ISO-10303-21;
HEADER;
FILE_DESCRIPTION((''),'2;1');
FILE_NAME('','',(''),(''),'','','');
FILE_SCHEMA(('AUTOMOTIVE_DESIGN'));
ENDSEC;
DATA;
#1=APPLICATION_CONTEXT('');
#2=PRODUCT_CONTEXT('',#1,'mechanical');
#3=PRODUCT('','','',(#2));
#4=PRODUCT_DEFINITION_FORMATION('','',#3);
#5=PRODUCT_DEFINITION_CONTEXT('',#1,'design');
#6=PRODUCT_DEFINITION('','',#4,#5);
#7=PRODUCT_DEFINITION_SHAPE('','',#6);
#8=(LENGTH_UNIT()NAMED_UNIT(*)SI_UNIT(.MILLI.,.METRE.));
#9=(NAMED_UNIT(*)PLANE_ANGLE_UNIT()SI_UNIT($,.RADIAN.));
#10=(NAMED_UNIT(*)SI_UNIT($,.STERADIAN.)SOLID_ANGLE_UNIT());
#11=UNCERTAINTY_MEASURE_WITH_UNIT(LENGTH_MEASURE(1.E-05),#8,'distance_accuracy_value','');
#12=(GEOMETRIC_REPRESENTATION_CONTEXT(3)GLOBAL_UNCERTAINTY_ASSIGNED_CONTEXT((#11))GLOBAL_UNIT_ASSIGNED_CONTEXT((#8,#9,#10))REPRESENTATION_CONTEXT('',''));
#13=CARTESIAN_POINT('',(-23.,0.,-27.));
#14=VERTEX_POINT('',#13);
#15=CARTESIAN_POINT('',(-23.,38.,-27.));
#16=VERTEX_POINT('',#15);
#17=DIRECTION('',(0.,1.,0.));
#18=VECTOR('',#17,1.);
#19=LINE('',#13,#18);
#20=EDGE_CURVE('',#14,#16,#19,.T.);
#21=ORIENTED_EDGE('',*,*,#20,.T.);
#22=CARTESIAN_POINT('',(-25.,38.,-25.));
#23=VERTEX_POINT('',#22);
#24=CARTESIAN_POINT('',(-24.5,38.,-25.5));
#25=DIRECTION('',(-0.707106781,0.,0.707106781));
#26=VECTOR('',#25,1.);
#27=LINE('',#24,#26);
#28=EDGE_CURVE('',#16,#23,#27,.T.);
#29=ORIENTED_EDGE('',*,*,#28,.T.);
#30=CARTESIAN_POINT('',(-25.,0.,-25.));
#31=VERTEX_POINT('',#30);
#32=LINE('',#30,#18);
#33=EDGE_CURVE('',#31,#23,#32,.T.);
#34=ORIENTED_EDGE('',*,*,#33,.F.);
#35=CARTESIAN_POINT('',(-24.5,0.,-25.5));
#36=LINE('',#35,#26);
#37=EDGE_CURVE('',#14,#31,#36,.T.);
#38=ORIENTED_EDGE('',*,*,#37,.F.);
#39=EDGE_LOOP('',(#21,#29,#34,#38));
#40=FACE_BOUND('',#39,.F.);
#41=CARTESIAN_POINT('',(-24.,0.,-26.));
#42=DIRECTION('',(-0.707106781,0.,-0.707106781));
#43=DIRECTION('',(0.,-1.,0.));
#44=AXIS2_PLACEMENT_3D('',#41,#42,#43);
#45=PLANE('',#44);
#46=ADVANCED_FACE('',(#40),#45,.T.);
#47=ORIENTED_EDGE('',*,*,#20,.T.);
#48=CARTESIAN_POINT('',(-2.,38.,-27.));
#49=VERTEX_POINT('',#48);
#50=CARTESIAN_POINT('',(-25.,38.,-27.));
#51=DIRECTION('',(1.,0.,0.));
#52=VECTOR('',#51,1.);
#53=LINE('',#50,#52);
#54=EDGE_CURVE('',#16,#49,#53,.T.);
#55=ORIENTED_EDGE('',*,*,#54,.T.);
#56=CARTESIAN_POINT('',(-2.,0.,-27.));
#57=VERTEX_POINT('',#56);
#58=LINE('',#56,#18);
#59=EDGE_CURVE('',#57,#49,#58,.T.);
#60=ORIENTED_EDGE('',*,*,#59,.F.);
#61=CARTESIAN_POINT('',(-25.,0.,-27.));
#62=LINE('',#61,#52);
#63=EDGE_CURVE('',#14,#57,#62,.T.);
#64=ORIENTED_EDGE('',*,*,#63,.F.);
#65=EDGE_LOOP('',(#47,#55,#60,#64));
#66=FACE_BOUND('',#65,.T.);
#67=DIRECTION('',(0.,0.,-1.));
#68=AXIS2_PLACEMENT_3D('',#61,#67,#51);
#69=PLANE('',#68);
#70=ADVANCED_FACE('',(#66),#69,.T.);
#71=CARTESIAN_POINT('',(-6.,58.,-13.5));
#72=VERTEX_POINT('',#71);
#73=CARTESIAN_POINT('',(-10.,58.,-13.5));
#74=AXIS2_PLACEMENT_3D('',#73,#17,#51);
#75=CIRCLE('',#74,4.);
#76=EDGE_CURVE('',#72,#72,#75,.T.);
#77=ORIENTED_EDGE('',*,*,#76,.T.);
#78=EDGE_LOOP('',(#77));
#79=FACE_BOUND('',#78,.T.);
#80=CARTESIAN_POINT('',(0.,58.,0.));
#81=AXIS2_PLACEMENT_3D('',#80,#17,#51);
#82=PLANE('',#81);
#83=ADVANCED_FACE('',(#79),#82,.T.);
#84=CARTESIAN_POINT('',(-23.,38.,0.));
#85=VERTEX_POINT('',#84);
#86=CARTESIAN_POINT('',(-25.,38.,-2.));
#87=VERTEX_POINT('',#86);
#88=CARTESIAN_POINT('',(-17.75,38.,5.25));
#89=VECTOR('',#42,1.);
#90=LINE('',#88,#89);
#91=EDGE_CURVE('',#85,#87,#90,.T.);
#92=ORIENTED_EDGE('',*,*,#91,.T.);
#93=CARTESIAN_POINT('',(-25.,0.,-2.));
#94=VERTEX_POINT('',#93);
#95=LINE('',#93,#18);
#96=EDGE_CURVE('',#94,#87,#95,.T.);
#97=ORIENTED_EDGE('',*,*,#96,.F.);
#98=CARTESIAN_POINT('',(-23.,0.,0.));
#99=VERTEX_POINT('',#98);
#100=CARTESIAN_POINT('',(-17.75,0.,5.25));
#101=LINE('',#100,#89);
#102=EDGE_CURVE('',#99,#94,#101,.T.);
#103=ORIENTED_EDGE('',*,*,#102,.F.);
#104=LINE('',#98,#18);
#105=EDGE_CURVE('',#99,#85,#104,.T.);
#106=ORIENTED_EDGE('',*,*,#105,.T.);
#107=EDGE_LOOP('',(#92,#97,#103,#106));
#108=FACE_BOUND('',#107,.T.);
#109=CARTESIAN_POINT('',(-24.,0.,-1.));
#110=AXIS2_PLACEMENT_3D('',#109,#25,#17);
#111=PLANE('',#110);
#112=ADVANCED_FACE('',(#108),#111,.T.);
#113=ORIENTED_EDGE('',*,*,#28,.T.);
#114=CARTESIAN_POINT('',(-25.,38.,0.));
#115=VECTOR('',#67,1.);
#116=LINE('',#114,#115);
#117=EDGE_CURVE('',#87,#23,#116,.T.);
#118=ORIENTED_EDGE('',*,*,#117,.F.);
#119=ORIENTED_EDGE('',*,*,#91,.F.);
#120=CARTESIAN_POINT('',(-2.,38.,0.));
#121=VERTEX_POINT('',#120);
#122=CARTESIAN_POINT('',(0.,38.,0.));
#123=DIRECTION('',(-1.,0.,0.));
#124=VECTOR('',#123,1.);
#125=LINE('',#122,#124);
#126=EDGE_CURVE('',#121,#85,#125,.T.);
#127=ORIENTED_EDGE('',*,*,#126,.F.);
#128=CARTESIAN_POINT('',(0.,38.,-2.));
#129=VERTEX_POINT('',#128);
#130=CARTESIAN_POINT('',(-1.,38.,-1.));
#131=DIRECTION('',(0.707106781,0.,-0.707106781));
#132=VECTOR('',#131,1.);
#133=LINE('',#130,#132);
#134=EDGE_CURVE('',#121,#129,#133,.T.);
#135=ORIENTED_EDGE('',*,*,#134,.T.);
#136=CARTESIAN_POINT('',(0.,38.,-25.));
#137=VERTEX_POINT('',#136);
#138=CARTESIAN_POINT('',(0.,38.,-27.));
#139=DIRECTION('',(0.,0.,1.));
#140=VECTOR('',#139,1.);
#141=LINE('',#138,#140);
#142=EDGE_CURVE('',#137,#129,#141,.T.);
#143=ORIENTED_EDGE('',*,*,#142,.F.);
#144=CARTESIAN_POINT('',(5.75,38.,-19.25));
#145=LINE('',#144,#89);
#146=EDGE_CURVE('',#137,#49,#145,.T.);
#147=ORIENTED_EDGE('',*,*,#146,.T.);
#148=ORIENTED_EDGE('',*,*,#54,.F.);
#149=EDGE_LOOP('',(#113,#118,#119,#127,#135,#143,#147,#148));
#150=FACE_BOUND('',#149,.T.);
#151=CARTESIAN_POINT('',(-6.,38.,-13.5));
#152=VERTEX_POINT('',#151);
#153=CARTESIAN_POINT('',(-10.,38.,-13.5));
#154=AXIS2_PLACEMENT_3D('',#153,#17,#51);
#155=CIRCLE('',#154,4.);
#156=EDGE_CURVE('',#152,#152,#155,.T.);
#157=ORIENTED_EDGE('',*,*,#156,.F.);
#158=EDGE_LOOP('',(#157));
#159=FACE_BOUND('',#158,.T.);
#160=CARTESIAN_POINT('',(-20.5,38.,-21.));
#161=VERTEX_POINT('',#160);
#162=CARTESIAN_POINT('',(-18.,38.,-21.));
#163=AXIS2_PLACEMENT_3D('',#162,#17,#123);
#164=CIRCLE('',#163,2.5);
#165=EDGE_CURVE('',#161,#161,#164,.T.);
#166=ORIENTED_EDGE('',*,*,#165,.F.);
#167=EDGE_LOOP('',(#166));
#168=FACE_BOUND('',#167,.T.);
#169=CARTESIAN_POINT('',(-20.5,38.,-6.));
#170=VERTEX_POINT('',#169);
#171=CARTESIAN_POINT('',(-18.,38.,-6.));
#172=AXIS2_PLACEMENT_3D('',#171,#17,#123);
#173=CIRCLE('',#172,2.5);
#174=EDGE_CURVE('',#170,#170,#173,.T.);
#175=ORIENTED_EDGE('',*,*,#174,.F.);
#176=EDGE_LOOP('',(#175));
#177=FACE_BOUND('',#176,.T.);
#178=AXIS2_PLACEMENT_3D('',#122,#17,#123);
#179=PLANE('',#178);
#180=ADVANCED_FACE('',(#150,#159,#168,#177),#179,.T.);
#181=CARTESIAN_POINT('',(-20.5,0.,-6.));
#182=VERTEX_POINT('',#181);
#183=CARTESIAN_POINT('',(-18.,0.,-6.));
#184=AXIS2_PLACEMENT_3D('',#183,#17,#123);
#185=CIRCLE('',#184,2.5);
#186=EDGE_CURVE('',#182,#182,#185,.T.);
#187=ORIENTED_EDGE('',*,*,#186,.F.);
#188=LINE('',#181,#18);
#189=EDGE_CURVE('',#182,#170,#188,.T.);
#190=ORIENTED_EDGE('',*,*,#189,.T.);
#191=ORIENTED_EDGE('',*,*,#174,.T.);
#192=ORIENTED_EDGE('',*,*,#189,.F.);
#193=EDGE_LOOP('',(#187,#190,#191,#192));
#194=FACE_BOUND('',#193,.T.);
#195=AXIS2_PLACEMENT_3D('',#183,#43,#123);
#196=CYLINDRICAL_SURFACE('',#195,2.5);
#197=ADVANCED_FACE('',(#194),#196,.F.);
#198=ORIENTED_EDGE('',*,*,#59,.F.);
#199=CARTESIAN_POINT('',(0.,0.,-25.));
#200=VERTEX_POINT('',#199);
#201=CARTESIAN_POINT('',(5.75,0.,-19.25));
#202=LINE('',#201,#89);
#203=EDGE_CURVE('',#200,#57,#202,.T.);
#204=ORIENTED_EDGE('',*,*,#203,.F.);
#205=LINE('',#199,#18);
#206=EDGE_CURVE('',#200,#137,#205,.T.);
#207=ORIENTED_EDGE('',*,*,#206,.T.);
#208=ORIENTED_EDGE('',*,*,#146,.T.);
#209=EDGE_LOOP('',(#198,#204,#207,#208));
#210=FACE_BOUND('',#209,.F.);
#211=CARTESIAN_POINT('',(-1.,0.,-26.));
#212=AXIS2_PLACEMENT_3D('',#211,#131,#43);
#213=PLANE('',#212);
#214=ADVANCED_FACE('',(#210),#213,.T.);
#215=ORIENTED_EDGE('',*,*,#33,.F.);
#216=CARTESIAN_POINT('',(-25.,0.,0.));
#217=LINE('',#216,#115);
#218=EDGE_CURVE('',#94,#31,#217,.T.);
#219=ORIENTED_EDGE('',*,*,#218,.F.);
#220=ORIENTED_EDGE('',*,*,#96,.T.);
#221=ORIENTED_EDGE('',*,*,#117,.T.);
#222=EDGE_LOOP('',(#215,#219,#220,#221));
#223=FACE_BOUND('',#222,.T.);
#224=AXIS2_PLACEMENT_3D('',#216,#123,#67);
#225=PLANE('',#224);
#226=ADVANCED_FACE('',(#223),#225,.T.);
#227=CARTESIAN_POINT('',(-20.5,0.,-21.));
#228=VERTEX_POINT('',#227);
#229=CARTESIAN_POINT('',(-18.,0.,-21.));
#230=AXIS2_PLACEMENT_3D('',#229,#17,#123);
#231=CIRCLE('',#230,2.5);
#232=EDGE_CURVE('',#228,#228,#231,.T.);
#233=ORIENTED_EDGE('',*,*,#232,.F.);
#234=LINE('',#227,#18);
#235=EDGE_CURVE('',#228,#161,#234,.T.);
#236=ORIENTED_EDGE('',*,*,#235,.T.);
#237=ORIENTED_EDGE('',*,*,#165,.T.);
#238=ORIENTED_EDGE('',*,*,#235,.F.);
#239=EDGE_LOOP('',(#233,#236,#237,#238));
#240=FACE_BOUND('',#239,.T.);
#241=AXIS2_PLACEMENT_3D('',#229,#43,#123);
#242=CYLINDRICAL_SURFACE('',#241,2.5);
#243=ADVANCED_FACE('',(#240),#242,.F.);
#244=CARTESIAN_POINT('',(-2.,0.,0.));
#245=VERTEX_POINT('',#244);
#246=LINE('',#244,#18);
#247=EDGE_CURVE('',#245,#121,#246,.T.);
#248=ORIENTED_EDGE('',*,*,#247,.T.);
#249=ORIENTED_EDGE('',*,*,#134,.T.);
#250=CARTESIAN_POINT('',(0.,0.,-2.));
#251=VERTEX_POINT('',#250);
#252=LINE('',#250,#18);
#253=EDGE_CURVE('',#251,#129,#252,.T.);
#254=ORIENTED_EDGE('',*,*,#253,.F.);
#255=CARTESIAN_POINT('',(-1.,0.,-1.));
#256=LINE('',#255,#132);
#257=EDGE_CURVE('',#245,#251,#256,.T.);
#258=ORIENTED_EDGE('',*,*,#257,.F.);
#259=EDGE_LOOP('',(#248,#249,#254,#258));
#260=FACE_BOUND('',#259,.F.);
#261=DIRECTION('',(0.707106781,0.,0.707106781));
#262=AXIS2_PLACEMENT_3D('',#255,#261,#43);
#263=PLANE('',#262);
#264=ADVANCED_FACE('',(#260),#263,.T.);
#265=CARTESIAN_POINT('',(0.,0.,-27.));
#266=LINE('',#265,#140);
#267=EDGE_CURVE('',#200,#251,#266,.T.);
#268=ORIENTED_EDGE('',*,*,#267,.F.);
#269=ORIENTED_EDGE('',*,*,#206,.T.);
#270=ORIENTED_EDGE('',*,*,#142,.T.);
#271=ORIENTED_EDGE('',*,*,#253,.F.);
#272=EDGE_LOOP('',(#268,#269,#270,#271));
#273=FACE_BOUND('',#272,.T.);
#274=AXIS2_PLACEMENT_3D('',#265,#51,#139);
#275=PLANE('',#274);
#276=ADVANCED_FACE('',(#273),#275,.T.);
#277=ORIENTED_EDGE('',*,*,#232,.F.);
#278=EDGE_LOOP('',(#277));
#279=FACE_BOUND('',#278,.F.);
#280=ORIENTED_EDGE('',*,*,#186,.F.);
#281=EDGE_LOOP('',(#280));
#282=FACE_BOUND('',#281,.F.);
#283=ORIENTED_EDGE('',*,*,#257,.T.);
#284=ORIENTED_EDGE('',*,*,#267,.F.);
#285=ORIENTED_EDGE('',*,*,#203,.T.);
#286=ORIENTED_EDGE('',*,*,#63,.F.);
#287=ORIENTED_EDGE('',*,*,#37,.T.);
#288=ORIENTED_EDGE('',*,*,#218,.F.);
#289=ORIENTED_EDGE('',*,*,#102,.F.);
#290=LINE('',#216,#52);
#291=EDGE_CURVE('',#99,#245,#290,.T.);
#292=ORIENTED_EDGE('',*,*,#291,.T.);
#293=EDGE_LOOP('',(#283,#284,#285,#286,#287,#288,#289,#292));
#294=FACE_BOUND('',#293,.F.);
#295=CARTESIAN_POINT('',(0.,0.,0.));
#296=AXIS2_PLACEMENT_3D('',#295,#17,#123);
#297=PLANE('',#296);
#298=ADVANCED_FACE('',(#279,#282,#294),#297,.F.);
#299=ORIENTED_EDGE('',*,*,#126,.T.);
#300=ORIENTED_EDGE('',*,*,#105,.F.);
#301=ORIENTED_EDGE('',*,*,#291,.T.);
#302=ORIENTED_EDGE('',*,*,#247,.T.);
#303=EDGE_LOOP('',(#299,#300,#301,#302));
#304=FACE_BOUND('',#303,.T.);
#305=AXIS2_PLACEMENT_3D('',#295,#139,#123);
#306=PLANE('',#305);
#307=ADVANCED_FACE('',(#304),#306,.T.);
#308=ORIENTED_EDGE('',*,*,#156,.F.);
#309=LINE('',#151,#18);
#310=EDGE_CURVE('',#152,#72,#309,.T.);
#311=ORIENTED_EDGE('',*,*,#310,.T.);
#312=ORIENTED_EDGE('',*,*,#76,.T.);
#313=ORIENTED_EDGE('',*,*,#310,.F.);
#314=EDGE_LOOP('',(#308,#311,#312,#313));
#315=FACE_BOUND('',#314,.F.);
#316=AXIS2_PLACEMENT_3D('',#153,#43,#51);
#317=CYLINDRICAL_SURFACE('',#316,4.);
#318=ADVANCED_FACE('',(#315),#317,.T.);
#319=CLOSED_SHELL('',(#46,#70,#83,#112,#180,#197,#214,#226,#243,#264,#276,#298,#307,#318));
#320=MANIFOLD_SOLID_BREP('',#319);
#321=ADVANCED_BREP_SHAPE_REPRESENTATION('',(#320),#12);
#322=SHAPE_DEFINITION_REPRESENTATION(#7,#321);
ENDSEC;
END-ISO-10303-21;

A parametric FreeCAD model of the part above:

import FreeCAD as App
import Part
import Sketcher
Q = App.Units.Quantity


def edges_at(feature, points):
    """Names of the edges that pass closest to the given points."""
    edges = feature.Shape.Edges
    near = lambda p: min(range(len(edges)), key=lambda i: edges[i].distToShape(Part.Vertex(*p))[0])
    return sorted({f"Edge{near(p) + 1}" for p in points})


def add_polygon(sketch, points):
    """Adds a closed chain of lines whose ends are joined by coincident constraints."""
    first, n = sketch.GeometryCount, len(points)
    for a, b in zip(points, points[1:] + points[:1]):
        sketch.addGeometry(Part.LineSegment(App.Vector(*a, 0), App.Vector(*b, 0)), False)
    for i in range(n):
        sketch.addConstraint(Sketcher.Constraint("Coincident", first + i, 2, first + (i + 1) % n, 1))

doc = App.newDocument("Part")
params = doc.addObject("Spreadsheet::Sheet", "Params")
for row, (alias, value) in enumerate([
    ("sketch1_diameter", "5 mm"),
    ("sketch1_width", "25 mm"),
    ("sketch1_height", "27 mm"),
    ("pad1_length", "38 mm"),
    ("sketch2_diameter", "8 mm"),
    ("pad2_length", "20 mm"),
    ("chamfer_size", "2 mm"),
], start=1):
    params.set(f"A{row}", alias)
    params.set(f"B{row}", "=" + value)
    params.setAlias(f"B{row}", alias)

body = doc.addObject("PartDesign::Body", "Body")

sketch1 = body.newObject("Sketcher::SketchObject", "Sketch")
sketch1.AttachmentSupport = (doc.getObject("XZ_Plane"), [""])
sketch1.MapMode = "FlatFace"
add_polygon(sketch1, [(-25, 0), (0, 0), (0, -27), (-25, -27)])
sketch1.addGeometry(Part.Circle(App.Vector(-18, -21, 0), App.Vector(0, 0, 1), 2.5), False)
sketch1.addGeometry(Part.Circle(App.Vector(-18, -6, 0), App.Vector(0, 0, 1), 2.5), False)
sketch1.addConstraint(Sketcher.Constraint("Horizontal", 0))
sketch1.addConstraint(Sketcher.Constraint("Vertical", 1))
sketch1.addConstraint(Sketcher.Constraint("Horizontal", 2))
sketch1.addConstraint(Sketcher.Constraint("Vertical", 3))
sketch1.addConstraint(Sketcher.Constraint("Coincident", 0, 2, -1, 1))
sketch1.addConstraint(Sketcher.Constraint("Equal", 4, 5))
sketch1.addConstraint(Sketcher.Constraint("Vertical", 4, 3, 5, 3))
sketch1.addConstraint(Sketcher.Constraint("Diameter", 4, Q("5 mm")))
sketch1.addConstraint(Sketcher.Constraint("DistanceX", 0, 1, 0, 2, Q("25 mm")))
sketch1.addConstraint(Sketcher.Constraint("DistanceY", 1, 2, 1, 1, Q("27 mm")))
sketch1.addConstraint(Sketcher.Constraint("DistanceX", 4, 3, -1, 1, Q("18 mm")))
sketch1.addConstraint(Sketcher.Constraint("DistanceY", 4, 3, -1, 1, Q("21 mm")))
sketch1.addConstraint(Sketcher.Constraint("DistanceY", 5, 3, -1, 1, Q("6 mm")))
sketch1.setExpression("Constraints[11]", "Params.sketch1_diameter")
sketch1.setExpression("Constraints[12]", "Params.sketch1_width")
sketch1.setExpression("Constraints[13]", "Params.sketch1_height")
pad1 = body.newObject("PartDesign::Pad", "Pad")
pad1.Profile = sketch1
pad1.setExpression("Length", "Params.pad1_length")
pad1.Reversed = True

sketch2 = body.newObject("Sketcher::SketchObject", "Sketch001")
sketch2.AttachmentSupport = (doc.getObject("XZ_Plane"), [""])
sketch2.MapMode = "FlatFace"
sketch2.AttachmentOffset = App.Placement(App.Vector(0, 0, -38), App.Rotation())
sketch2.addGeometry(Part.Circle(App.Vector(-10, -13.5, 0), App.Vector(0, 0, 1), 4), False)
sketch2.addConstraint(Sketcher.Constraint("Diameter", 0, Q("8 mm")))
sketch2.addConstraint(Sketcher.Constraint("DistanceX", 0, 3, -1, 1, Q("10 mm")))
sketch2.addConstraint(Sketcher.Constraint("DistanceY", 0, 3, -1, 1, Q("13.5 mm")))
sketch2.setExpression("Constraints[0]", "Params.sketch2_diameter")
pad2 = body.newObject("PartDesign::Pad", "Pad001")
pad2.Profile = sketch2
pad2.setExpression("Length", "Params.pad2_length")
pad2.Reversed = True
doc.recompute()

chamfer = body.newObject("PartDesign::Chamfer", "Chamfer")
chamfer.Base = (pad2, edges_at(pad2, [
    (-25, 19, 0),
    (-25, 19, -27),
    (0, 19, -27),
    (0, 19, 0),
]))
chamfer.setExpression("Size", "Params.chamfer_size")

doc.recompute()
